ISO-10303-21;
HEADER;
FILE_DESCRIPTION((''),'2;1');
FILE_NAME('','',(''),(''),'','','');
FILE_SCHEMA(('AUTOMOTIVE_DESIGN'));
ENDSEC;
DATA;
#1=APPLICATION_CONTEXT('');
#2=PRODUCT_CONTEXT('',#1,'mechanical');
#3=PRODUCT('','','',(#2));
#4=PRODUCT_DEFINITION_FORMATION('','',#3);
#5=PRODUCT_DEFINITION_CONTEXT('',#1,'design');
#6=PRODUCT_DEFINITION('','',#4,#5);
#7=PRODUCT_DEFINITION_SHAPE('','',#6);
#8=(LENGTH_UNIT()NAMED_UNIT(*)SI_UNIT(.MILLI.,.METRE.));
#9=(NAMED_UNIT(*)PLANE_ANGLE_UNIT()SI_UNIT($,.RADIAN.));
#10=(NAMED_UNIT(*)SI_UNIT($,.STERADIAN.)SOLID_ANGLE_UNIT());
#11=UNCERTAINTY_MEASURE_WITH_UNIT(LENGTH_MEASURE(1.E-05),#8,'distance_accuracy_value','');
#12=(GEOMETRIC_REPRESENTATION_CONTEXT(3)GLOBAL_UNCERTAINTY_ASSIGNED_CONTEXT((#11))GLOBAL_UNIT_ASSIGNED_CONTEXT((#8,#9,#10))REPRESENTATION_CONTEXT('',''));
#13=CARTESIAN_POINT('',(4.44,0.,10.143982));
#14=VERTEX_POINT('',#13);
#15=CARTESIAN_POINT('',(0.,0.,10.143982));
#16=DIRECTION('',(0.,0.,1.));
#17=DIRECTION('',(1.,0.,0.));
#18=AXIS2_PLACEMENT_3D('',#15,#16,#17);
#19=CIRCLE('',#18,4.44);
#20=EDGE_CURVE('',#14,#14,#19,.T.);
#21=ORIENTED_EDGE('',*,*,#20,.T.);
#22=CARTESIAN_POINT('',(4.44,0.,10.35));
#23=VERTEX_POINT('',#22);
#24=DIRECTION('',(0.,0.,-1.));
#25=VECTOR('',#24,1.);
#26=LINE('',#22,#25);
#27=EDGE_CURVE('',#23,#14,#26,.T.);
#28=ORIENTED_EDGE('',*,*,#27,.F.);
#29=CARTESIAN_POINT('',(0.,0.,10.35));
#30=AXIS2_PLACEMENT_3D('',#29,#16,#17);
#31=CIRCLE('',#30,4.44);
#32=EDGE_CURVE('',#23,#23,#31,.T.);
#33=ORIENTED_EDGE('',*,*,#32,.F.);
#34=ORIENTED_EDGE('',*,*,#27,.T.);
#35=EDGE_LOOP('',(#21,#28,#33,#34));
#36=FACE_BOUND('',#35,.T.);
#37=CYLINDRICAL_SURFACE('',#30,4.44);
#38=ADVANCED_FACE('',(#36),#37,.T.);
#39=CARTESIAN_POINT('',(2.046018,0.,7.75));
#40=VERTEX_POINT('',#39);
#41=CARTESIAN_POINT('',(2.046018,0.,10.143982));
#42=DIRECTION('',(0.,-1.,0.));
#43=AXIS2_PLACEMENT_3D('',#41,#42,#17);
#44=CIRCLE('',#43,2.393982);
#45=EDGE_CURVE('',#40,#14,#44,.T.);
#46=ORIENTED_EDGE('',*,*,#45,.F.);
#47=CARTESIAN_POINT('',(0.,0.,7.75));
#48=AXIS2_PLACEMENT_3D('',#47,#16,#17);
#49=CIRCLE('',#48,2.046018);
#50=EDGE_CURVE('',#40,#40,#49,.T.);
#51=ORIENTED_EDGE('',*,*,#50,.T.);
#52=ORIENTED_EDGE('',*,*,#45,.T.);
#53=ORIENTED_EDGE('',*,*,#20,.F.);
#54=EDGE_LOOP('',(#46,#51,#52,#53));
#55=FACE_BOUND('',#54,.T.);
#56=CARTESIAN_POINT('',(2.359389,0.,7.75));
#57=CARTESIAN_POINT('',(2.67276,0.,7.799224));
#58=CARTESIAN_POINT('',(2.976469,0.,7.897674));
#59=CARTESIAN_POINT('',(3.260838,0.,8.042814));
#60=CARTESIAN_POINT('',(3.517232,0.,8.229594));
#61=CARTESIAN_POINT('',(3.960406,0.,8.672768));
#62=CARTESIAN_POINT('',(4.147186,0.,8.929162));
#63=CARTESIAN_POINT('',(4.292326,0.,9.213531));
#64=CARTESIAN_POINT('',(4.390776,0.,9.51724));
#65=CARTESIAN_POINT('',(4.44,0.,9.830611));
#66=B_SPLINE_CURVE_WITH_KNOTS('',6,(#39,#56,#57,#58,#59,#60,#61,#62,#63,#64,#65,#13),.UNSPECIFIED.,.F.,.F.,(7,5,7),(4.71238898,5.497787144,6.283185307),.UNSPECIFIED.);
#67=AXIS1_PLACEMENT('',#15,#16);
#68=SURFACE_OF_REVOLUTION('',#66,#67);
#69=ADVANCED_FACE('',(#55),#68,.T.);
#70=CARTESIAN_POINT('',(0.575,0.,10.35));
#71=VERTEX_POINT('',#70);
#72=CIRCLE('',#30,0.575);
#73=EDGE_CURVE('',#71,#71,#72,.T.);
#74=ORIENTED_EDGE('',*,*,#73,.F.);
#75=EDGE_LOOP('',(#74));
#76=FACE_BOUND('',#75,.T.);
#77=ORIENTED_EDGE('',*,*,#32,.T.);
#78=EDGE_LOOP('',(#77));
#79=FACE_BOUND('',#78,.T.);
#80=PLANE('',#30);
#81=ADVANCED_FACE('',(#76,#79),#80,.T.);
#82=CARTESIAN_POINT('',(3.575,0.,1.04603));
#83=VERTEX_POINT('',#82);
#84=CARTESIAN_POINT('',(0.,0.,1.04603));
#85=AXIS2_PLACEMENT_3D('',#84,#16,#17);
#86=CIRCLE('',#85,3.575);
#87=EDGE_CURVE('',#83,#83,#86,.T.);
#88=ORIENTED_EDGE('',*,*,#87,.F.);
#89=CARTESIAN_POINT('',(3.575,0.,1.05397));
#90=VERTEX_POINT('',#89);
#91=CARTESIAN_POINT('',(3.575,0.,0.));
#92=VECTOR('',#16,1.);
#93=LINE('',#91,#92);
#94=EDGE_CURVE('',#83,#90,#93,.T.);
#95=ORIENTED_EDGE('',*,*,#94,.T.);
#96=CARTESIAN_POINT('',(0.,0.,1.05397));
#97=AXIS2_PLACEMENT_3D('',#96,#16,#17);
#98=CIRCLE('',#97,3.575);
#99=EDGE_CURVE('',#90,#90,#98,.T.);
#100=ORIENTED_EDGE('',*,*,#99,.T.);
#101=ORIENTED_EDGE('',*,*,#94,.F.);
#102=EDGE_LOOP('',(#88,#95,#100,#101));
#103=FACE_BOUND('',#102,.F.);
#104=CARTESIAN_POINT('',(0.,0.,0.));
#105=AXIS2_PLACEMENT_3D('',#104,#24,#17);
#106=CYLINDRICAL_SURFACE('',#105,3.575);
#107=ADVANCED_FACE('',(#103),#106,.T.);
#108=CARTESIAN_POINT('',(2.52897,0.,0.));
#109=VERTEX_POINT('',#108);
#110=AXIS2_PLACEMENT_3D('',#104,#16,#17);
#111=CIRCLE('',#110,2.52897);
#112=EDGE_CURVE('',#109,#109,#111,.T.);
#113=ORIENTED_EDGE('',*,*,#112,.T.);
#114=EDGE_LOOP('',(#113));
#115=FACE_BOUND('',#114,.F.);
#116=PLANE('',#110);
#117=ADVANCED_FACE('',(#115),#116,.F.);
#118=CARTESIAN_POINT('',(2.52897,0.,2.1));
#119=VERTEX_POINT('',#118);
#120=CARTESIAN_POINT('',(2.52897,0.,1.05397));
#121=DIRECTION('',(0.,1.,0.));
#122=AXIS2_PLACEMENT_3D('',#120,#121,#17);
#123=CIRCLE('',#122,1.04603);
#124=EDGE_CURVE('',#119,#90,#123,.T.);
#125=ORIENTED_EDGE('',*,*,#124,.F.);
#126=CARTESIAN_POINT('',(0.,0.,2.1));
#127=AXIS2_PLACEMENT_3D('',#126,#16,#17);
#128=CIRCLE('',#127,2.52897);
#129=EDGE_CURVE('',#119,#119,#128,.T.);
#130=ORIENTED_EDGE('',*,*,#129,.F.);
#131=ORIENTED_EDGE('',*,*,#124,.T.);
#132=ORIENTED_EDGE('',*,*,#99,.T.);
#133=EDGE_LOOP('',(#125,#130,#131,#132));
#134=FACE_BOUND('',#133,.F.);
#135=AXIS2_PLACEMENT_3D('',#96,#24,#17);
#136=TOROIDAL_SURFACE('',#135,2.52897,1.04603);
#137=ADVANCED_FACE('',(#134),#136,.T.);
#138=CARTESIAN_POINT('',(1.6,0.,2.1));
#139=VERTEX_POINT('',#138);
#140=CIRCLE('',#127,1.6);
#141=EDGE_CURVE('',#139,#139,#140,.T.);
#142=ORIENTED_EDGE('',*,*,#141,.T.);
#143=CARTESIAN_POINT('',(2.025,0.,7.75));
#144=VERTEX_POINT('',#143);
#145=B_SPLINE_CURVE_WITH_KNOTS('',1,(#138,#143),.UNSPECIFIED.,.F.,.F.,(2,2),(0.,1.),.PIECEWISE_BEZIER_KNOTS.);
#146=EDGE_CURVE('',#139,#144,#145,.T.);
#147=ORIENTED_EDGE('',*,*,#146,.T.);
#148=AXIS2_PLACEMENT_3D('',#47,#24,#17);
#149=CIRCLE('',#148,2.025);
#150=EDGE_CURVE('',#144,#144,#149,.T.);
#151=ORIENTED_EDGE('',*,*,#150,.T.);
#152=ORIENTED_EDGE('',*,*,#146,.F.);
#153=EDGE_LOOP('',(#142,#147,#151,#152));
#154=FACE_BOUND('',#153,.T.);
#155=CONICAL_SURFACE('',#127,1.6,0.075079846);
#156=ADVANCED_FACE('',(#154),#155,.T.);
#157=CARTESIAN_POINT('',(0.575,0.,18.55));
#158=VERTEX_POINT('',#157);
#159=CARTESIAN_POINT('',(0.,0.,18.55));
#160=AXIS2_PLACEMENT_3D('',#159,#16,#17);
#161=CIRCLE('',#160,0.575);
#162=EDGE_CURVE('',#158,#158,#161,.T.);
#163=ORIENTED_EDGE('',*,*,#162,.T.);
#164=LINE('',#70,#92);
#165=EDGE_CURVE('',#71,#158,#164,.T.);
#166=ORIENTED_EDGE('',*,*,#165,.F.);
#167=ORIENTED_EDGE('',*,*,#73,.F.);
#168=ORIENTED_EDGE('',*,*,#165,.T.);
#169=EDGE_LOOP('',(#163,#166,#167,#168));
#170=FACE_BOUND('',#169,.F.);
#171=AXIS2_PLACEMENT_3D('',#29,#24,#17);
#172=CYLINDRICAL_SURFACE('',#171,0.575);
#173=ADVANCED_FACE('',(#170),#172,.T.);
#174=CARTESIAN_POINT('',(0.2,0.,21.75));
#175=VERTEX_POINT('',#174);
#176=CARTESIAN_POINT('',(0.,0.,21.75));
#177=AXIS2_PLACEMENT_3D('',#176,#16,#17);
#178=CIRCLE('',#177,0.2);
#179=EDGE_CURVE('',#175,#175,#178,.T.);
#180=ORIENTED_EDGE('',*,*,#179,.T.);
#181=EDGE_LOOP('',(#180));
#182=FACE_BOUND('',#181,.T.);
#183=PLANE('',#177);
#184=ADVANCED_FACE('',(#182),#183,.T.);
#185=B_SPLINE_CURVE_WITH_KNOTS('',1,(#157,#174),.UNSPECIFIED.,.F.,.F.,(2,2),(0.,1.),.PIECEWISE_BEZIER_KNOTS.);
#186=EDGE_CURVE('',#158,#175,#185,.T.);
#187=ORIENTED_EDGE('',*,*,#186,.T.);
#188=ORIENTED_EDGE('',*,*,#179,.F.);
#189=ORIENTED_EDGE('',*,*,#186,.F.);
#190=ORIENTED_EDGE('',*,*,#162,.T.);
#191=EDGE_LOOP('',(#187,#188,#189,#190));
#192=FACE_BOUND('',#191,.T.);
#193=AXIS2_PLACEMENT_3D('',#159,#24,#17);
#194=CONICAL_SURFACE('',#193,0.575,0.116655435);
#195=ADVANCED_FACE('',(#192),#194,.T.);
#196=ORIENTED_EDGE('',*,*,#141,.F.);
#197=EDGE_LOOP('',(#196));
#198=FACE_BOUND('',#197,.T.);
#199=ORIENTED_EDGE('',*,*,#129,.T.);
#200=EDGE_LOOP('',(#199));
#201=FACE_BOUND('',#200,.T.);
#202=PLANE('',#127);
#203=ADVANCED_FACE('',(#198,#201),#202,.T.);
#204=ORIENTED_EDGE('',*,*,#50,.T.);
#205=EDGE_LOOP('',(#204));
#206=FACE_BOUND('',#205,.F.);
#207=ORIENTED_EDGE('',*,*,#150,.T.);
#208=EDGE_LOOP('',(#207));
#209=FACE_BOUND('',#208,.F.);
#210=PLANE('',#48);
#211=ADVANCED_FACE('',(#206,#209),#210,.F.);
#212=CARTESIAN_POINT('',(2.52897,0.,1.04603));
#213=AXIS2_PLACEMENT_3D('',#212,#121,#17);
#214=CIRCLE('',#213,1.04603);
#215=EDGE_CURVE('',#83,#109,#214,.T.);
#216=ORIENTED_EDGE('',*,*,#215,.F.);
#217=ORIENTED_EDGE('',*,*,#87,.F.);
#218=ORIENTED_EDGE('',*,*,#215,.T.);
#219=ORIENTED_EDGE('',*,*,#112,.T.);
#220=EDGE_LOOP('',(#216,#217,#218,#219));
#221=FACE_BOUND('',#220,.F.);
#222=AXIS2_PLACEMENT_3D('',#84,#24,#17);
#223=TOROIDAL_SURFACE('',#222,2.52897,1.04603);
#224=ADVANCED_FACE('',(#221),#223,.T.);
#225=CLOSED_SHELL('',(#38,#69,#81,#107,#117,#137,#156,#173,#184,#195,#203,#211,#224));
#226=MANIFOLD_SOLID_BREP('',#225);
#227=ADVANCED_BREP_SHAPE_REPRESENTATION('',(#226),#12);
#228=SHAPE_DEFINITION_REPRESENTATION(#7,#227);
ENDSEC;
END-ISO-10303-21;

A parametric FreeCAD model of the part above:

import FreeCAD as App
import Part
import Sketcher

V = App.Vector
Q = App.Units.Quantity


def edges_at(feature, points):
    """Names of the edges that pass closest to the given points."""
    edges = feature.Shape.Edges
    near = lambda p: min(range(len(edges)), key=lambda i: edges[i].distToShape(Part.Vertex(*p))[0])
    return sorted({f"Edge{near(p) + 1}" for p in points})

doc = App.newDocument("Part")
body = doc.addObject("PartDesign::Body", "Body")

sketch1 = doc.addObject("Sketcher::SketchObject", "Sketch")
body.addObject(sketch1)
sketch1.AttachmentSupport = (doc.XY_Plane, [""])
sketch1.MapMode = "FlatFace"
sketch1.addGeometry(Part.Circle(V(0, 0, 0), V(0, 0, 1), 3.575), False)
sketch1.addConstraint(Sketcher.Constraint("Coincident", 0, 3, -1, 1))
sketch1.addConstraint(Sketcher.Constraint("Diameter", 0, Q("7.15 mm")))
pad1 = doc.addObject("PartDesign::Pad", "Pad")
body.addObject(pad1)
pad1.Profile = sketch1
pad1.Length = 2.1

sketch2 = doc.addObject("Sketcher::SketchObject", "Sketch001")
body.addObject(sketch2)
sketch2.AttachmentSupport = (doc.XY_Plane, [""])
sketch2.MapMode = "FlatFace"
sketch2.AttachmentOffset = App.Placement(V(0, 0, 2.1), App.Rotation())
sketch2.addGeometry(Part.Circle(V(0, 0, 0), V(0, 0, 1), 1.6), False)
sketch2.addConstraint(Sketcher.Constraint("Coincident", 0, 3, -1, 1))
sketch2.addConstraint(Sketcher.Constraint("Diameter", 0, Q("3.2 mm")))
pad2 = doc.addObject("PartDesign::Pad", "Pad001")
body.addObject(pad2)
pad2.Profile = sketch2
pad2.Length = 8.25

sketch3 = doc.addObject("Sketcher::SketchObject", "Sketch002")
body.addObject(sketch3)
sketch3.AttachmentSupport = (doc.XY_Plane, [""])
sketch3.MapMode = "FlatFace"
sketch3.AttachmentOffset = App.Placement(V(0, 0, 10.35), App.Rotation())
sketch3.addGeometry(Part.Circle(V(0, 0, 0), V(0, 0, 1), 4.44), False)
sketch3.addGeometry(Part.Circle(V(0, 0, 0), V(0, 0, 1), 1.6), False)
sketch3.addConstraint(Sketcher.Constraint("Coincident", 0, 3, -1, 1))
sketch3.addConstraint(Sketcher.Constraint("Coincident", 1, 3, -1, 1))
sketch3.addConstraint(Sketcher.Constraint("Diameter", 1, Q("3.2 mm")))
sketch3.addConstraint(Sketcher.Constraint("Diameter", 0, Q("8.88 mm")))
pad3 = doc.addObject("PartDesign::Pad", "Pad002")
body.addObject(pad3)
pad3.Profile = sketch3
pad3.Length = 2.6
pad3.Reversed = True
doc.recompute()

fillet = doc.addObject("PartDesign::Fillet", "Fillet")
body.addObject(fillet)
fillet.Base = (pad3, edges_at(pad3, [(-3.575, 0, 2.1), (-3.575, 0, 0)]))
fillet.Radius = 1.04603
doc.recompute()

fillet2 = doc.addObject("PartDesign::Fillet", "Fillet001")
body.addObject(fillet2)
fillet2.Base = (fillet, edges_at(fillet, [(-4.44, 0, 7.75)]))
fillet2.Radius = 2.393982

sketch4 = doc.addObject("Sketcher::SketchObject", "Sketch003")
body.addObject(sketch4)
sketch4.AttachmentSupport = (doc.XY_Plane, [""])
sketch4.MapMode = "FlatFace"
sketch4.AttachmentOffset = App.Placement(V(0, 0, 2.1), App.Rotation())
sketch4.addGeometry(Part.Circle(V(0, 0, 0), V(0, 0, 1), 1.6), False)
sketch4.addConstraint(Sketcher.Constraint("Coincident", 0, 3, -1, 1))
sketch4.addConstraint(Sketcher.Constraint("Diameter", 0, Q("3.2 mm")))

sketch5 = doc.addObject("Sketcher::SketchObject", "Sketch004")
body.addObject(sketch5)
sketch5.AttachmentSupport = (doc.XY_Plane, [""])
sketch5.MapMode = "FlatFace"
sketch5.AttachmentOffset = App.Placement(V(0, 0, 7.75), App.Rotation())
sketch5.addGeometry(Part.Circle(V(0, 0, 0), V(0, 0, 1), 2.025), False)
sketch5.addConstraint(Sketcher.Constraint("Coincident", 0, 3, -1, 1))
sketch5.addConstraint(Sketcher.Constraint("Diameter", 0, Q("4.05 mm")))

additiveloft = doc.addObject("PartDesign::AdditiveLoft", "AdditiveLoft")
body.addObject(additiveloft)
additiveloft.Profile = sketch4
additiveloft.Sections = [sketch5]

sketch6 = doc.addObject("Sketcher::SketchObject", "Sketch005")
body.addObject(sketch6)
sketch6.AttachmentSupport = (doc.XY_Plane, [""])
sketch6.MapMode = "FlatFace"
sketch6.AttachmentOffset = App.Placement(V(0, 0, 10.35), App.Rotation())
sketch6.addGeometry(Part.Circle(V(0, 0, 0), V(0, 0, 1), 0.575), False)
sketch6.addConstraint(Sketcher.Constraint("Coincident", 0, 3, -1, 1))
sketch6.addConstraint(Sketcher.Constraint("Diameter", 0, Q("1.15 mm")))
pad4 = doc.addObject("PartDesign::Pad", "Pad003")
body.addObject(pad4)
pad4.Profile = sketch6
pad4.Length = 8.2

sketch7 = doc.addObject("Sketcher::SketchObject", "Sketch006")
body.addObject(sketch7)
sketch7.AttachmentSupport = (doc.XY_Plane, [""])
sketch7.MapMode = "FlatFace"
sketch7.AttachmentOffset = App.Placement(V(0, 0, 18.55), App.Rotation())
sketch7.addGeometry(Part.Circle(V(0, 0, 0), V(0, 0, 1), 0.2), False)
sketch7.addConstraint(Sketcher.Constraint("Coincident", 0, 3, -1, 1))
sketch7.addConstraint(Sketcher.Constraint("Diameter", 0, Q("0.4 mm")))
pad5 = doc.addObject("PartDesign::Pad", "Pad004")
body.addObject(pad5)
pad5.Profile = sketch7
pad5.Length = 3.2

sketch8 = doc.addObject("Sketcher::SketchObject", "Sketch007")
body.addObject(sketch8)
sketch8.AttachmentSupport = (doc.XY_Plane, [""])
sketch8.MapMode = "FlatFace"
sketch8.AttachmentOffset = App.Placement(V(0, 0, 18.55), App.Rotation())
sketch8.addGeometry(Part.Circle(V(0, 0, 0), V(0, 0, 1), 0.575), False)
sketch8.addConstraint(Sketcher.Constraint("Coincident", 0, 3, -1, 1))
sketch8.addConstraint(Sketcher.Constraint("Diameter", 0, Q("1.15 mm")))

sketch9 = doc.addObject("Sketcher::SketchObject", "Sketch008")
body.addObject(sketch9)
sketch9.AttachmentSupport = (doc.XY_Plane, [""])
sketch9.MapMode = "FlatFace"
sketch9.AttachmentOffset = App.Placement(V(0, 0, 21.75), App.Rotation())
sketch9.addGeometry(Part.Circle(V(0, 0, 0), V(0, 0, 1), 0.2), False)
sketch9.addConstraint(Sketcher.Constraint("Coincident", 0, 3, -1, 1))
sketch9.addConstraint(Sketcher.Constraint("Diameter", 0, Q("0.4 mm")))

additiveloft2 = doc.addObject("PartDesign::AdditiveLoft", "AdditiveLoft001")
body.addObject(additiveloft2)
additiveloft2.Profile = sketch8
additiveloft2.Sections = [sketch9]

doc.recompute()
